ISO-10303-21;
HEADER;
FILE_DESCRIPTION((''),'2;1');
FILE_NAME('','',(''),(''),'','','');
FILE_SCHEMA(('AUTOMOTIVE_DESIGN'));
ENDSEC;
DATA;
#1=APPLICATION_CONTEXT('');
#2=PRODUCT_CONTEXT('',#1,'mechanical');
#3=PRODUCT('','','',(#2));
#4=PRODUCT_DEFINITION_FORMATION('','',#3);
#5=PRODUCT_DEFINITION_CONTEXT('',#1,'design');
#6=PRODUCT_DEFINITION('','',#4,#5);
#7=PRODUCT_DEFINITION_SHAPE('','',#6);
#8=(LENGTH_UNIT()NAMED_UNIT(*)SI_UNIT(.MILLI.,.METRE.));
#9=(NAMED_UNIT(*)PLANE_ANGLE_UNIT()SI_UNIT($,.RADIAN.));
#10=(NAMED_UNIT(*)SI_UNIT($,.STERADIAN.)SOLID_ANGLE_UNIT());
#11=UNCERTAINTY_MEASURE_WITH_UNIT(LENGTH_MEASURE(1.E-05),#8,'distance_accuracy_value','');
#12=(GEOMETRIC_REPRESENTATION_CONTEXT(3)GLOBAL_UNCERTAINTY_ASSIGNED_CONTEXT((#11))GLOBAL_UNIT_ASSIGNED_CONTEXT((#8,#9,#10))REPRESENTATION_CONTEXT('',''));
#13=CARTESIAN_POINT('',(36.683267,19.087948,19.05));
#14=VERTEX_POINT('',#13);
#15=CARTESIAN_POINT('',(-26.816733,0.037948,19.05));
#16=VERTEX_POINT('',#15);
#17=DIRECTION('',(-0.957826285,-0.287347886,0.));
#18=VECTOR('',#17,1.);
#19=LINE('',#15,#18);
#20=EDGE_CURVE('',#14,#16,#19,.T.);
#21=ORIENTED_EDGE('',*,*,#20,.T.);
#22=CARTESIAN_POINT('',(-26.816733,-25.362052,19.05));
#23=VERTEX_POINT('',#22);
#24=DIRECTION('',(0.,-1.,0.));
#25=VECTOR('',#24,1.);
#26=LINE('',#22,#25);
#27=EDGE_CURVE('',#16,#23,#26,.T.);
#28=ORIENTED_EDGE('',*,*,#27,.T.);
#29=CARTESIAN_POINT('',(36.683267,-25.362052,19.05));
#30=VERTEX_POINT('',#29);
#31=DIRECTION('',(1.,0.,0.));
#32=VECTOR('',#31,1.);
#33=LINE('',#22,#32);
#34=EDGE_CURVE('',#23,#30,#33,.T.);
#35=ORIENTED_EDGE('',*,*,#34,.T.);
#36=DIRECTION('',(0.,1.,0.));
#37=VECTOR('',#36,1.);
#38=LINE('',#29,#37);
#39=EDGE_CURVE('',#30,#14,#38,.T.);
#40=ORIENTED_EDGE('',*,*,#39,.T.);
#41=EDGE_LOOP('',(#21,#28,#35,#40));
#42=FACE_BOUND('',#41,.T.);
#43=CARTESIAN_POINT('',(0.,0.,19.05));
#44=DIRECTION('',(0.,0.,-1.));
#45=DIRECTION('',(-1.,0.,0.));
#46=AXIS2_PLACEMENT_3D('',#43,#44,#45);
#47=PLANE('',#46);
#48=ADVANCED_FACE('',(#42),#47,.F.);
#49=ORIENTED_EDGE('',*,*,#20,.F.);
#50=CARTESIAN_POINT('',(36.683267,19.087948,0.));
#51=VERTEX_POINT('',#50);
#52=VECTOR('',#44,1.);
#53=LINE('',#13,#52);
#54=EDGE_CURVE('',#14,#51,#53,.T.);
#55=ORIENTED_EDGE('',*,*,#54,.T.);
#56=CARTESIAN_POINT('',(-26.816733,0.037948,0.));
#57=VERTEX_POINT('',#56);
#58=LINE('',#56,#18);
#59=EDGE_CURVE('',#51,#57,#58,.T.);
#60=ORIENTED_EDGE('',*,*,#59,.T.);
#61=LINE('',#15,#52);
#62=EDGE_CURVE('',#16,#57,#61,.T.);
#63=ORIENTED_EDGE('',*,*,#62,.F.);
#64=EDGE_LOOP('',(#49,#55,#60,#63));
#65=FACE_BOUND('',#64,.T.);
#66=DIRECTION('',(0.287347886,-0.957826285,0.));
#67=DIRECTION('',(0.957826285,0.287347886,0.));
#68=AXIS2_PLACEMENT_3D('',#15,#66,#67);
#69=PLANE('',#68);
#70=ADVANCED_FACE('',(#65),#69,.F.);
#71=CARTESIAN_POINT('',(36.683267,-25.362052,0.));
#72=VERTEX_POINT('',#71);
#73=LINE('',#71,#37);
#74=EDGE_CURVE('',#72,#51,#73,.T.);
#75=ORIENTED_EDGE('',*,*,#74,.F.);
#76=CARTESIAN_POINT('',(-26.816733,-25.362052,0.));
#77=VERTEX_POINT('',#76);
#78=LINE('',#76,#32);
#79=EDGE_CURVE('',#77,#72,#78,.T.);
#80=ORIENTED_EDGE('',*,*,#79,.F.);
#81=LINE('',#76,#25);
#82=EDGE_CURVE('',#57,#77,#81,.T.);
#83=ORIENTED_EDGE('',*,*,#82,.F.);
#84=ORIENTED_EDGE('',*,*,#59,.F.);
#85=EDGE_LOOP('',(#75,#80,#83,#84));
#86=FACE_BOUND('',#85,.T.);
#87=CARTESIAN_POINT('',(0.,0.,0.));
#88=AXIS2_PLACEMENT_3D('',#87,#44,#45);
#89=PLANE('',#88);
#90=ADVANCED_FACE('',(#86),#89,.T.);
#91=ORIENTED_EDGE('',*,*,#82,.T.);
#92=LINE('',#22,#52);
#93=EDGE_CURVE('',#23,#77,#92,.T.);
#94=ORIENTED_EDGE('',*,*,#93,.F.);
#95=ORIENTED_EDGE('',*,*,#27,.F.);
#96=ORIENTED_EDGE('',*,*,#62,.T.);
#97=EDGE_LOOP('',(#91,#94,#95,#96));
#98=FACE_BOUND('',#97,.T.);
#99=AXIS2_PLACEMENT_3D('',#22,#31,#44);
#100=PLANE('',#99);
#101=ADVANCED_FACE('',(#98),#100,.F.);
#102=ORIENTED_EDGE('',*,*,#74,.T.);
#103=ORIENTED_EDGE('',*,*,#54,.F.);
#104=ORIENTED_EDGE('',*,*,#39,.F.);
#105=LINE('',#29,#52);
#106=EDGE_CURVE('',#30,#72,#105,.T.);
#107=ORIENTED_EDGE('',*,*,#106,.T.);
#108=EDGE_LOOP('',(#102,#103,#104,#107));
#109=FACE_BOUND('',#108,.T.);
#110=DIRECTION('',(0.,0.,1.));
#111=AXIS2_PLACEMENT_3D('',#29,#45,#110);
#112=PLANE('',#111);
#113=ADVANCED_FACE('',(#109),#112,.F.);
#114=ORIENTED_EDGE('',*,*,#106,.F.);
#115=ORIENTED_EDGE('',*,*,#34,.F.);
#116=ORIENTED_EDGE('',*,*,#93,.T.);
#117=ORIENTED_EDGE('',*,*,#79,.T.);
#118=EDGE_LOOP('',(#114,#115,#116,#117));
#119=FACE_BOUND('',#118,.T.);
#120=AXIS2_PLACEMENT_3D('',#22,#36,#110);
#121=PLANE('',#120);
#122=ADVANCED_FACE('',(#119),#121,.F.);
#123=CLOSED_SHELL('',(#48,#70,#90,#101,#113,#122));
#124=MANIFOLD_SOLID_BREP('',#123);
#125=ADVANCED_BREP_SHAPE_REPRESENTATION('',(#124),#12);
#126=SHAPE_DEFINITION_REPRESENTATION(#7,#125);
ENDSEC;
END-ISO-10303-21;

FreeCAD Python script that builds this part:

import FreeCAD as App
import Part
import Sketcher

V = App.Vector
Q = App.Units.Quantity


def add_polygon(sketch, points):
    """Adds a closed chain of lines whose ends are joined by coincident constraints."""
    first, n = sketch.GeometryCount, len(points)
    for a, b in zip(points, points[1:] + points[:1]):
        sketch.addGeometry(Part.LineSegment(App.Vector(*a, 0), App.Vector(*b, 0)), False)
    for i in range(n):
        sketch.addConstraint(Sketcher.Constraint("Coincident", first + i, 2, first + (i + 1) % n, 1))

doc = App.newDocument("Part")
params = doc.addObject("Spreadsheet::Sheet", "Params")
for row, (alias, value) in enumerate([
    ("sketch1_height", "1 in"),
    ("sketch1_width", "2.5 in"),
    ("sketch1_height2", "1.75 in"),
    ("pad1_length", "0.75 in"),
], start=1):
    params.set(f"A{row}", alias)
    params.set(f"B{row}", "=" + value)
    params.setAlias(f"B{row}", alias)

body = doc.addObject("PartDesign::Body", "Body")

sketch1 = body.newObject("Sketcher::SketchObject", "Sketch")
sketch1.AttachmentSupport = (doc.getObject("XY_Plane"), [""])
sketch1.MapMode = "FlatFace"
add_polygon(sketch1, [(37, 19), (-27, 0), (-27, -25), (37, -25)])
sketch1.addConstraint([
    Sketcher.Constraint("Vertical", 1),
    Sketcher.Constraint("Horizontal", 2),
    Sketcher.Constraint("Vertical", 3),
    Sketcher.Constraint("DistanceY", 1, 2, 1, 1, Q("1 in")),
    Sketcher.Constraint("DistanceX", 2, 1, 2, 2, Q("2.5 in")),
    Sketcher.Constraint("DistanceY", 3, 1, 3, 2, Q("1.75 in")),
    Sketcher.Constraint("DistanceY", -1, 1, 0, 2, Q("0.037948 mm")),
    Sketcher.Constraint("DistanceX", 0, 2, -1, 1, Q("26.816733 mm")),
])
sketch1.setExpression("Constraints[7]", "Params.sketch1_height")
sketch1.setExpression("Constraints[8]", "Params.sketch1_width")
sketch1.setExpression("Constraints[9]", "Params.sketch1_height2")
pad1 = body.newObject("PartDesign::Pad", "Pad")
pad1.Profile = sketch1
pad1.setExpression("Length", "Params.pad1_length")

doc.recompute()
